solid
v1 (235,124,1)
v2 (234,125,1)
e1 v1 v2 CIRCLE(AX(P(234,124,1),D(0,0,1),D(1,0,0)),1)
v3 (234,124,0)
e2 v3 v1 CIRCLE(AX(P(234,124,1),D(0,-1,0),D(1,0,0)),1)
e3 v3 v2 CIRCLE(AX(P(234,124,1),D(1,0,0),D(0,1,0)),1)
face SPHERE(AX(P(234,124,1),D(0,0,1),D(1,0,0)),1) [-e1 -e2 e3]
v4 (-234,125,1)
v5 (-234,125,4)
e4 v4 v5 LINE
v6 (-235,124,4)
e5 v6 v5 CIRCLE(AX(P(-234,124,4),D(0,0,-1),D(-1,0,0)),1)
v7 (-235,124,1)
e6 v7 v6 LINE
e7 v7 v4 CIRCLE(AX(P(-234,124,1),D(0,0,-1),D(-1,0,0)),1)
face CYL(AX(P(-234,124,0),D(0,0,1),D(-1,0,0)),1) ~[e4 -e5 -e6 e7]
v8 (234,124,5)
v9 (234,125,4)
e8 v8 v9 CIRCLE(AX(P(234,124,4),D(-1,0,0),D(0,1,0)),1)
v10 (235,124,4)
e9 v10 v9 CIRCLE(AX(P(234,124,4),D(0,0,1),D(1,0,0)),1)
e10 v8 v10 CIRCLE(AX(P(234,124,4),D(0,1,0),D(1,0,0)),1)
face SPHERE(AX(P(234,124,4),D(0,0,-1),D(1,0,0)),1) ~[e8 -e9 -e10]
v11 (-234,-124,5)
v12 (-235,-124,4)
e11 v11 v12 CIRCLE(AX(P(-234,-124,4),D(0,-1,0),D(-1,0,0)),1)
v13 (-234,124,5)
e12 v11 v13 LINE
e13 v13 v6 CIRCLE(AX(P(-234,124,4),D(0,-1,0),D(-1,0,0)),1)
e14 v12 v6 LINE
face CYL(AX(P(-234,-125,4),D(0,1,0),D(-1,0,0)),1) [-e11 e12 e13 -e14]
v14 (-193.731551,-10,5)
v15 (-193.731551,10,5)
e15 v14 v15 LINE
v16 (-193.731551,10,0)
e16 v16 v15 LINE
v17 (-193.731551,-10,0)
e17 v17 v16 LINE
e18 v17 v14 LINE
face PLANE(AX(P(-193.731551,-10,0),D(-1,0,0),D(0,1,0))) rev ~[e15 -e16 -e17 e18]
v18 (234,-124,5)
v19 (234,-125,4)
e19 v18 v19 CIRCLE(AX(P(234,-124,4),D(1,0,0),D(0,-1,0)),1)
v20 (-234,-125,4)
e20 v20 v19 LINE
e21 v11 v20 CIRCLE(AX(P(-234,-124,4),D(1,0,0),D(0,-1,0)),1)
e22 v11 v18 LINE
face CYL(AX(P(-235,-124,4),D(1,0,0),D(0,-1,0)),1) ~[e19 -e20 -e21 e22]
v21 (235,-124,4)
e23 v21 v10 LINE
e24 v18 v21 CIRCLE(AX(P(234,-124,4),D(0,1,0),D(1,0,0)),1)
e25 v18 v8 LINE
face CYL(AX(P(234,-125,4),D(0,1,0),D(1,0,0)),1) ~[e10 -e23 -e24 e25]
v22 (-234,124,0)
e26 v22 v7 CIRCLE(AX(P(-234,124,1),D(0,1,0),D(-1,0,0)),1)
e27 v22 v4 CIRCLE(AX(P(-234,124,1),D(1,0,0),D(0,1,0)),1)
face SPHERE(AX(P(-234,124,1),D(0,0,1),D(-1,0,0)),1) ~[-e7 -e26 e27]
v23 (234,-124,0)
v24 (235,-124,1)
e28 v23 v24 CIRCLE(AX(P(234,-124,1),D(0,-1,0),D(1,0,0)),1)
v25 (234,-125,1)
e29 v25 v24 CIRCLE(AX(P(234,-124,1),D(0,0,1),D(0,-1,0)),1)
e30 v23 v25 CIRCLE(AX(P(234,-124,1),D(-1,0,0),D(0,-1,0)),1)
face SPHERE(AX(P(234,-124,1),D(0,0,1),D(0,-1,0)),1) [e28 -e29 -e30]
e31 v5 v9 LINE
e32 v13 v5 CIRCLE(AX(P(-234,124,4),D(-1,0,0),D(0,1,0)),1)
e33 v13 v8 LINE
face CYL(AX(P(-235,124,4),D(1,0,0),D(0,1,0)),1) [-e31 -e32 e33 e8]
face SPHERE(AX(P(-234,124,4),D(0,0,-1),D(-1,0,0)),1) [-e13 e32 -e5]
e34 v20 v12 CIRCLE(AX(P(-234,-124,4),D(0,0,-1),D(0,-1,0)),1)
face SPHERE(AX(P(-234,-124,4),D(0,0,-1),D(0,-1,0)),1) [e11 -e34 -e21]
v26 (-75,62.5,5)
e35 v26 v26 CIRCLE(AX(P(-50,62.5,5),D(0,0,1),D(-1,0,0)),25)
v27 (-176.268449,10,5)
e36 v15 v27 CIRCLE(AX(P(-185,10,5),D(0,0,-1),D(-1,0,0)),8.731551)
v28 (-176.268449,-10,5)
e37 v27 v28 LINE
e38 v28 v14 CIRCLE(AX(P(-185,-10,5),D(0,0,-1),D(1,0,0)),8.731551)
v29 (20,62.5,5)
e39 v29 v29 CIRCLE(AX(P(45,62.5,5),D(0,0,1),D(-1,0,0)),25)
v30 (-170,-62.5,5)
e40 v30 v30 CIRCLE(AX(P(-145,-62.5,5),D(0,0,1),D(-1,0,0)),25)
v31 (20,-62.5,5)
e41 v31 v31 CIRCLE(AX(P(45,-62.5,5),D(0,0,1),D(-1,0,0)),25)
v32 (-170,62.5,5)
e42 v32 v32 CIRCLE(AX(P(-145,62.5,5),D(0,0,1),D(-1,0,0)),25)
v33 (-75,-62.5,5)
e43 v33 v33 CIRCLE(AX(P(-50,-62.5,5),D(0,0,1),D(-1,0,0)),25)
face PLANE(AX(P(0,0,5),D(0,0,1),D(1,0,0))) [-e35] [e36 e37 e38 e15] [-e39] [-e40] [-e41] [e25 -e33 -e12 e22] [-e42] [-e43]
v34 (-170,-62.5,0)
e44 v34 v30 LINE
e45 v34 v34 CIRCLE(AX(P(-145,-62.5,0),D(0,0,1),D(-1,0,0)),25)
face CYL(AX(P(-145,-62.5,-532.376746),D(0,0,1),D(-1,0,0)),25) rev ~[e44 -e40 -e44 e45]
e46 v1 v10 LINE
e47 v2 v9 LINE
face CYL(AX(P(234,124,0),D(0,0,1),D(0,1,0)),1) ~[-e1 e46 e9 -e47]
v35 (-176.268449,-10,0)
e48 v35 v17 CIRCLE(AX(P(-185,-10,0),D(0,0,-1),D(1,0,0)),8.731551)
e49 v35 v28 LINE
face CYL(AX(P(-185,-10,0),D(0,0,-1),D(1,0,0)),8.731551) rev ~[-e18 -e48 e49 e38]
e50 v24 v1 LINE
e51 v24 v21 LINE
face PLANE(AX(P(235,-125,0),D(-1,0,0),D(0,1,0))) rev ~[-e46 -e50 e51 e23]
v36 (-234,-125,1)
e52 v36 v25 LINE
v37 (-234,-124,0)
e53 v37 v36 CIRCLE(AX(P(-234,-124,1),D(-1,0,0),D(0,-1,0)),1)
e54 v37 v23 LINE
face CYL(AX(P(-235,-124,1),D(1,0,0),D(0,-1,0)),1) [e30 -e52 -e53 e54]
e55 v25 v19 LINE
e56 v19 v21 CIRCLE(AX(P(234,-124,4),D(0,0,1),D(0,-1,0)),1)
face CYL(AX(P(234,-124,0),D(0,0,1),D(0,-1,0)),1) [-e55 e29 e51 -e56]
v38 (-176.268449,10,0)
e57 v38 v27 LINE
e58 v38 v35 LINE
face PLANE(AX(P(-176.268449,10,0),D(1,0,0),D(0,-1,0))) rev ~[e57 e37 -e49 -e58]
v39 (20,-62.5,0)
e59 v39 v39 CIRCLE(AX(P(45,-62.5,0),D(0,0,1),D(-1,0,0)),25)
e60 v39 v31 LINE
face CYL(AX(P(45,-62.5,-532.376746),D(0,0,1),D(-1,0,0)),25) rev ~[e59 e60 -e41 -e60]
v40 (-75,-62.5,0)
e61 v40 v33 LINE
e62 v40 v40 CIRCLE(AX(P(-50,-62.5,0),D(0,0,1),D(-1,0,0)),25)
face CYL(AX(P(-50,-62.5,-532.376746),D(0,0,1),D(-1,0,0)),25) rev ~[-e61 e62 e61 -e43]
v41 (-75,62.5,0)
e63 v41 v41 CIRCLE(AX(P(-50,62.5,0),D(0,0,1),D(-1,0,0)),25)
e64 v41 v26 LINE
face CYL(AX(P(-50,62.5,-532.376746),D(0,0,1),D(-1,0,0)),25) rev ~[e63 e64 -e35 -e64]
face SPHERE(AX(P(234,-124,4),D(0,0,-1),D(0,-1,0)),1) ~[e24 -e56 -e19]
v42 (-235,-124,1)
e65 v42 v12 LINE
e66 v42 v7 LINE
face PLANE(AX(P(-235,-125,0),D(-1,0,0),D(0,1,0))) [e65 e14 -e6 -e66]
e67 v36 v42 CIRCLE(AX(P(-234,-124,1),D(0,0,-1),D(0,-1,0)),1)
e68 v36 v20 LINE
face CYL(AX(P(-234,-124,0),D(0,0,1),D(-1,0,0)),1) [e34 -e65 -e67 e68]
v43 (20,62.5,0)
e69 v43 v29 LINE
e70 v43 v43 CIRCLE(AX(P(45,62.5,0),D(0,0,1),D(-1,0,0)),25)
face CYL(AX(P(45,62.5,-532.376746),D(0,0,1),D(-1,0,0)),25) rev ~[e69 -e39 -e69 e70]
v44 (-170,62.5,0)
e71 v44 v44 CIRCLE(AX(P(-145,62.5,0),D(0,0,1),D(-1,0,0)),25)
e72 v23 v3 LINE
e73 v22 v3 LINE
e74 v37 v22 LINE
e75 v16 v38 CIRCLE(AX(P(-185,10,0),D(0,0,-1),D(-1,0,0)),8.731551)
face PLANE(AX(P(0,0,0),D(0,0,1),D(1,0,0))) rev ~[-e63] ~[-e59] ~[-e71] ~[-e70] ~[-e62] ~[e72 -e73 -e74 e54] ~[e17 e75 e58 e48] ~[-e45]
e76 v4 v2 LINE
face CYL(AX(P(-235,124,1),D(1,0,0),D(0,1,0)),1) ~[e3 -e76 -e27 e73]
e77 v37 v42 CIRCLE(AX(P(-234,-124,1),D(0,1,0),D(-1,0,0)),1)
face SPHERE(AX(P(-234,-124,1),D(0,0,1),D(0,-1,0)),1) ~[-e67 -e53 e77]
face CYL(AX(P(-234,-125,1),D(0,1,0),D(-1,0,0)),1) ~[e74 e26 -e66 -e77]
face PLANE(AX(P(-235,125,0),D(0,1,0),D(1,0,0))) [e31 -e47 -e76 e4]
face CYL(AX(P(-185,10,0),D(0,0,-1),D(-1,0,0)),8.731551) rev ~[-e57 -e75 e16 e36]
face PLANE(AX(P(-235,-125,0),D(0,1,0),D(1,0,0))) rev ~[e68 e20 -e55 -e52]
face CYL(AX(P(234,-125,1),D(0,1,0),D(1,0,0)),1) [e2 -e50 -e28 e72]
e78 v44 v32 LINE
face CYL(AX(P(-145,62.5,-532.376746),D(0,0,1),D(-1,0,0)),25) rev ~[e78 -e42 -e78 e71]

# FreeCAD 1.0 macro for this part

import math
import FreeCAD as App
import Part
import Sketcher


def edges_at(feature, points):
    """Names of the edges that pass closest to the given points."""
    edges = feature.Shape.Edges
    near = lambda p: min(range(len(edges)), key=lambda i: edges[i].distToShape(Part.Vertex(*p))[0])
    return sorted({f"Edge{near(p) + 1}" for p in points})

doc = App.newDocument("Part")
params = doc.addObject("Spreadsheet::Sheet", "Params")
for row, (alias, value) in enumerate([
    ("sketch1_width", "470 mm"),
    ("sketch1_height", "250 mm"),
    ("sketch1_height2", "20 mm"),
    ("pad1_length", "5 mm"),
    ("fillet_radius", "1 mm"),
    ("sketch2_diameter", "50 mm"),
    ("hole_diameter", "50 mm"),
], start=1):
    params.set(f"A{row}", alias)
    params.set(f"B{row}", "=" + value)
    params.setAlias(f"B{row}", alias)

body = doc.addObject("PartDesign::Body", "Body")

# Sketch on XY plane
sketch1 = doc.addObject("Sketcher::SketchObject", "Sketch")
body.addObject(sketch1)
sketch1.AttachmentSupport = (doc.XY_Plane, [""])
sketch1.MapMode = "FlatFace"
sketch1.addGeometry([
    Part.LineSegment(App.Vector(-235, 125, 0), App.Vector(-235, -125, 0)),  # 0
    Part.LineSegment(App.Vector(-235, -125, 0), App.Vector(235, -125, 0)),  # 1
    Part.LineSegment(App.Vector(235, -125, 0), App.Vector(235, 125, 0)),  # 2
    Part.LineSegment(App.Vector(235, 125, 0), App.Vector(-235, 125, 0)),  # 3
    Part.LineSegment(App.Vector(-194, -10, 0), App.Vector(-194, 10, 0)),  # 4
    Part.ArcOfCircle(Part.Circle(App.Vector(-185, 10, 0), App.Vector(0, 0, 1), 9), math.radians(0), math.radians(180)),  # 5
    Part.LineSegment(App.Vector(-176, 10, 0), App.Vector(-176, -10, 0)),  # 6
    Part.ArcOfCircle(Part.Circle(App.Vector(-185, -10, 0), App.Vector(0, 0, 1), 9), math.radians(180), math.radians(360)),  # 7
], False)
sketch1.addConstraint([
    Sketcher.Constraint("Coincident", 0, 2, 1, 1),
    Sketcher.Constraint("Coincident", 1, 2, 2, 1),
    Sketcher.Constraint("Coincident", 2, 2, 3, 1),
    Sketcher.Constraint("Coincident", 3, 2, 0, 1),
    Sketcher.Constraint("Tangent", 4, 2, 5, 2),
    Sketcher.Constraint("Tangent", 5, 1, 6, 1),
    Sketcher.Constraint("Tangent", 6, 2, 7, 2),
    Sketcher.Constraint("Tangent", 7, 1, 4, 1),
    Sketcher.Constraint("Vertical", 0),
    Sketcher.Constraint("Horizontal", 1),
    Sketcher.Constraint("Vertical", 2),
    Sketcher.Constraint("Horizontal", 3),
    Sketcher.Constraint("Vertical", 4),
    Sketcher.Constraint("Vertical", 6),
    Sketcher.Constraint("Symmetric", 0, 2, 2, 2, -1, 1),
    Sketcher.Constraint("DistanceX", 1, 1, 1, 2, 470.0),
    Sketcher.Constraint("DistanceY", 0, 2, 0, 1, 250.0),
    Sketcher.Constraint("DistanceY", 4, 1, 4, 2, 20.0),
    Sketcher.Constraint("DistanceX", 5, 3, -1, 1, 185.0),
    Sketcher.Constraint("DistanceY", -1, 1, 5, 3, 10.0),
    Sketcher.Constraint("Radius", 5, 8.731551),
])
sketch1.setExpression("Constraints[15]", "Params.sketch1_width")
sketch1.setExpression("Constraints[16]", "Params.sketch1_height")
sketch1.setExpression("Constraints[17]", "Params.sketch1_height2")
pad1 = doc.addObject("PartDesign::Pad", "Pad")
body.addObject(pad1)
pad1.Profile = sketch1
pad1.setExpression("Length", "Params.pad1_length")
doc.recompute()

fillet = doc.addObject("PartDesign::Fillet", "Fillet")
body.addObject(fillet)
fillet.Base = (pad1, edges_at(pad1, [
    (-235, -125, 2.5),
    (235, -125, 2.5),
    (0, -125, 0),
    (0, -125, 5),
    (235, 125, 2.5),
    (235, 0, 0),
    (235, 0, 5),
    (-235, 125, 2.5),
    (-235, 0, 0),
    (-235, 0, 5),
    (0, 125, 0),
    (0, 125, 5),
]))
fillet.setExpression("Radius", "Params.fillet_radius")

# Sketch on XY plane
sketch2 = doc.addObject("Sketcher::SketchObject", "Sketch001")
body.addObject(sketch2)
sketch2.AttachmentSupport = (doc.XY_Plane, [""])
sketch2.MapMode = "FlatFace"
sketch2.addGeometry([
    Part.Circle(App.Vector(-145, -62, 0), App.Vector(0, 0, 1), 25),  # 0
    Part.Circle(App.Vector(-145, 62, 0), App.Vector(0, 0, 1), 25),  # 1
    Part.Circle(App.Vector(-50, 62, 0), App.Vector(0, 0, 1), 25),  # 2
    Part.Circle(App.Vector(-50, -62, 0), App.Vector(0, 0, 1), 25),  # 3
    Part.Circle(App.Vector(45, -62, 0), App.Vector(0, 0, 1), 25),  # 4
    Part.Circle(App.Vector(45, 62, 0), App.Vector(0, 0, 1), 25),  # 5
], False)
sketch2.addConstraint([
    Sketcher.Constraint("Equal", 0, 1),
    Sketcher.Constraint("Equal", 1, 2),
    Sketcher.Constraint("Equal", 2, 3),
    Sketcher.Constraint("Equal", 3, 4),
    Sketcher.Constraint("Equal", 4, 5),
    Sketcher.Constraint("Symmetric", 0, 3, 1, 3, -1),
    Sketcher.Constraint("Symmetric", 2, 3, 3, 3, -1),
    Sketcher.Constraint("Symmetric", 4, 3, 5, 3, -1),
    Sketcher.Constraint("Horizontal", 1, 3, 2, 3),
    Sketcher.Constraint("Horizontal", 3, 3, 4, 3),
    Sketcher.Constraint("Diameter", 0, 50.0),
    Sketcher.Constraint("DistanceX", 0, 3, -1, 1, 145.0),
    Sketcher.Constraint("DistanceX", 2, 3, -1, 1, 50.0),
    Sketcher.Constraint("DistanceX", -1, 1, 4, 3, 45.0),
    Sketcher.Constraint("DistanceY", 0, 3, 1, 3, 125.0),
])
sketch2.setExpression("Constraints[10]", "Params.sketch2_diameter")
doc.recompute()
hole = doc.addObject("PartDesign::Hole", "Hole")
body.addObject(hole)
hole.Profile = sketch2
hole.ThreadType = "None"
hole.setExpression("Diameter", "Params.hole_diameter")
hole.DepthType = "ThroughAll"
hole.Reversed = True

doc.recompute()
